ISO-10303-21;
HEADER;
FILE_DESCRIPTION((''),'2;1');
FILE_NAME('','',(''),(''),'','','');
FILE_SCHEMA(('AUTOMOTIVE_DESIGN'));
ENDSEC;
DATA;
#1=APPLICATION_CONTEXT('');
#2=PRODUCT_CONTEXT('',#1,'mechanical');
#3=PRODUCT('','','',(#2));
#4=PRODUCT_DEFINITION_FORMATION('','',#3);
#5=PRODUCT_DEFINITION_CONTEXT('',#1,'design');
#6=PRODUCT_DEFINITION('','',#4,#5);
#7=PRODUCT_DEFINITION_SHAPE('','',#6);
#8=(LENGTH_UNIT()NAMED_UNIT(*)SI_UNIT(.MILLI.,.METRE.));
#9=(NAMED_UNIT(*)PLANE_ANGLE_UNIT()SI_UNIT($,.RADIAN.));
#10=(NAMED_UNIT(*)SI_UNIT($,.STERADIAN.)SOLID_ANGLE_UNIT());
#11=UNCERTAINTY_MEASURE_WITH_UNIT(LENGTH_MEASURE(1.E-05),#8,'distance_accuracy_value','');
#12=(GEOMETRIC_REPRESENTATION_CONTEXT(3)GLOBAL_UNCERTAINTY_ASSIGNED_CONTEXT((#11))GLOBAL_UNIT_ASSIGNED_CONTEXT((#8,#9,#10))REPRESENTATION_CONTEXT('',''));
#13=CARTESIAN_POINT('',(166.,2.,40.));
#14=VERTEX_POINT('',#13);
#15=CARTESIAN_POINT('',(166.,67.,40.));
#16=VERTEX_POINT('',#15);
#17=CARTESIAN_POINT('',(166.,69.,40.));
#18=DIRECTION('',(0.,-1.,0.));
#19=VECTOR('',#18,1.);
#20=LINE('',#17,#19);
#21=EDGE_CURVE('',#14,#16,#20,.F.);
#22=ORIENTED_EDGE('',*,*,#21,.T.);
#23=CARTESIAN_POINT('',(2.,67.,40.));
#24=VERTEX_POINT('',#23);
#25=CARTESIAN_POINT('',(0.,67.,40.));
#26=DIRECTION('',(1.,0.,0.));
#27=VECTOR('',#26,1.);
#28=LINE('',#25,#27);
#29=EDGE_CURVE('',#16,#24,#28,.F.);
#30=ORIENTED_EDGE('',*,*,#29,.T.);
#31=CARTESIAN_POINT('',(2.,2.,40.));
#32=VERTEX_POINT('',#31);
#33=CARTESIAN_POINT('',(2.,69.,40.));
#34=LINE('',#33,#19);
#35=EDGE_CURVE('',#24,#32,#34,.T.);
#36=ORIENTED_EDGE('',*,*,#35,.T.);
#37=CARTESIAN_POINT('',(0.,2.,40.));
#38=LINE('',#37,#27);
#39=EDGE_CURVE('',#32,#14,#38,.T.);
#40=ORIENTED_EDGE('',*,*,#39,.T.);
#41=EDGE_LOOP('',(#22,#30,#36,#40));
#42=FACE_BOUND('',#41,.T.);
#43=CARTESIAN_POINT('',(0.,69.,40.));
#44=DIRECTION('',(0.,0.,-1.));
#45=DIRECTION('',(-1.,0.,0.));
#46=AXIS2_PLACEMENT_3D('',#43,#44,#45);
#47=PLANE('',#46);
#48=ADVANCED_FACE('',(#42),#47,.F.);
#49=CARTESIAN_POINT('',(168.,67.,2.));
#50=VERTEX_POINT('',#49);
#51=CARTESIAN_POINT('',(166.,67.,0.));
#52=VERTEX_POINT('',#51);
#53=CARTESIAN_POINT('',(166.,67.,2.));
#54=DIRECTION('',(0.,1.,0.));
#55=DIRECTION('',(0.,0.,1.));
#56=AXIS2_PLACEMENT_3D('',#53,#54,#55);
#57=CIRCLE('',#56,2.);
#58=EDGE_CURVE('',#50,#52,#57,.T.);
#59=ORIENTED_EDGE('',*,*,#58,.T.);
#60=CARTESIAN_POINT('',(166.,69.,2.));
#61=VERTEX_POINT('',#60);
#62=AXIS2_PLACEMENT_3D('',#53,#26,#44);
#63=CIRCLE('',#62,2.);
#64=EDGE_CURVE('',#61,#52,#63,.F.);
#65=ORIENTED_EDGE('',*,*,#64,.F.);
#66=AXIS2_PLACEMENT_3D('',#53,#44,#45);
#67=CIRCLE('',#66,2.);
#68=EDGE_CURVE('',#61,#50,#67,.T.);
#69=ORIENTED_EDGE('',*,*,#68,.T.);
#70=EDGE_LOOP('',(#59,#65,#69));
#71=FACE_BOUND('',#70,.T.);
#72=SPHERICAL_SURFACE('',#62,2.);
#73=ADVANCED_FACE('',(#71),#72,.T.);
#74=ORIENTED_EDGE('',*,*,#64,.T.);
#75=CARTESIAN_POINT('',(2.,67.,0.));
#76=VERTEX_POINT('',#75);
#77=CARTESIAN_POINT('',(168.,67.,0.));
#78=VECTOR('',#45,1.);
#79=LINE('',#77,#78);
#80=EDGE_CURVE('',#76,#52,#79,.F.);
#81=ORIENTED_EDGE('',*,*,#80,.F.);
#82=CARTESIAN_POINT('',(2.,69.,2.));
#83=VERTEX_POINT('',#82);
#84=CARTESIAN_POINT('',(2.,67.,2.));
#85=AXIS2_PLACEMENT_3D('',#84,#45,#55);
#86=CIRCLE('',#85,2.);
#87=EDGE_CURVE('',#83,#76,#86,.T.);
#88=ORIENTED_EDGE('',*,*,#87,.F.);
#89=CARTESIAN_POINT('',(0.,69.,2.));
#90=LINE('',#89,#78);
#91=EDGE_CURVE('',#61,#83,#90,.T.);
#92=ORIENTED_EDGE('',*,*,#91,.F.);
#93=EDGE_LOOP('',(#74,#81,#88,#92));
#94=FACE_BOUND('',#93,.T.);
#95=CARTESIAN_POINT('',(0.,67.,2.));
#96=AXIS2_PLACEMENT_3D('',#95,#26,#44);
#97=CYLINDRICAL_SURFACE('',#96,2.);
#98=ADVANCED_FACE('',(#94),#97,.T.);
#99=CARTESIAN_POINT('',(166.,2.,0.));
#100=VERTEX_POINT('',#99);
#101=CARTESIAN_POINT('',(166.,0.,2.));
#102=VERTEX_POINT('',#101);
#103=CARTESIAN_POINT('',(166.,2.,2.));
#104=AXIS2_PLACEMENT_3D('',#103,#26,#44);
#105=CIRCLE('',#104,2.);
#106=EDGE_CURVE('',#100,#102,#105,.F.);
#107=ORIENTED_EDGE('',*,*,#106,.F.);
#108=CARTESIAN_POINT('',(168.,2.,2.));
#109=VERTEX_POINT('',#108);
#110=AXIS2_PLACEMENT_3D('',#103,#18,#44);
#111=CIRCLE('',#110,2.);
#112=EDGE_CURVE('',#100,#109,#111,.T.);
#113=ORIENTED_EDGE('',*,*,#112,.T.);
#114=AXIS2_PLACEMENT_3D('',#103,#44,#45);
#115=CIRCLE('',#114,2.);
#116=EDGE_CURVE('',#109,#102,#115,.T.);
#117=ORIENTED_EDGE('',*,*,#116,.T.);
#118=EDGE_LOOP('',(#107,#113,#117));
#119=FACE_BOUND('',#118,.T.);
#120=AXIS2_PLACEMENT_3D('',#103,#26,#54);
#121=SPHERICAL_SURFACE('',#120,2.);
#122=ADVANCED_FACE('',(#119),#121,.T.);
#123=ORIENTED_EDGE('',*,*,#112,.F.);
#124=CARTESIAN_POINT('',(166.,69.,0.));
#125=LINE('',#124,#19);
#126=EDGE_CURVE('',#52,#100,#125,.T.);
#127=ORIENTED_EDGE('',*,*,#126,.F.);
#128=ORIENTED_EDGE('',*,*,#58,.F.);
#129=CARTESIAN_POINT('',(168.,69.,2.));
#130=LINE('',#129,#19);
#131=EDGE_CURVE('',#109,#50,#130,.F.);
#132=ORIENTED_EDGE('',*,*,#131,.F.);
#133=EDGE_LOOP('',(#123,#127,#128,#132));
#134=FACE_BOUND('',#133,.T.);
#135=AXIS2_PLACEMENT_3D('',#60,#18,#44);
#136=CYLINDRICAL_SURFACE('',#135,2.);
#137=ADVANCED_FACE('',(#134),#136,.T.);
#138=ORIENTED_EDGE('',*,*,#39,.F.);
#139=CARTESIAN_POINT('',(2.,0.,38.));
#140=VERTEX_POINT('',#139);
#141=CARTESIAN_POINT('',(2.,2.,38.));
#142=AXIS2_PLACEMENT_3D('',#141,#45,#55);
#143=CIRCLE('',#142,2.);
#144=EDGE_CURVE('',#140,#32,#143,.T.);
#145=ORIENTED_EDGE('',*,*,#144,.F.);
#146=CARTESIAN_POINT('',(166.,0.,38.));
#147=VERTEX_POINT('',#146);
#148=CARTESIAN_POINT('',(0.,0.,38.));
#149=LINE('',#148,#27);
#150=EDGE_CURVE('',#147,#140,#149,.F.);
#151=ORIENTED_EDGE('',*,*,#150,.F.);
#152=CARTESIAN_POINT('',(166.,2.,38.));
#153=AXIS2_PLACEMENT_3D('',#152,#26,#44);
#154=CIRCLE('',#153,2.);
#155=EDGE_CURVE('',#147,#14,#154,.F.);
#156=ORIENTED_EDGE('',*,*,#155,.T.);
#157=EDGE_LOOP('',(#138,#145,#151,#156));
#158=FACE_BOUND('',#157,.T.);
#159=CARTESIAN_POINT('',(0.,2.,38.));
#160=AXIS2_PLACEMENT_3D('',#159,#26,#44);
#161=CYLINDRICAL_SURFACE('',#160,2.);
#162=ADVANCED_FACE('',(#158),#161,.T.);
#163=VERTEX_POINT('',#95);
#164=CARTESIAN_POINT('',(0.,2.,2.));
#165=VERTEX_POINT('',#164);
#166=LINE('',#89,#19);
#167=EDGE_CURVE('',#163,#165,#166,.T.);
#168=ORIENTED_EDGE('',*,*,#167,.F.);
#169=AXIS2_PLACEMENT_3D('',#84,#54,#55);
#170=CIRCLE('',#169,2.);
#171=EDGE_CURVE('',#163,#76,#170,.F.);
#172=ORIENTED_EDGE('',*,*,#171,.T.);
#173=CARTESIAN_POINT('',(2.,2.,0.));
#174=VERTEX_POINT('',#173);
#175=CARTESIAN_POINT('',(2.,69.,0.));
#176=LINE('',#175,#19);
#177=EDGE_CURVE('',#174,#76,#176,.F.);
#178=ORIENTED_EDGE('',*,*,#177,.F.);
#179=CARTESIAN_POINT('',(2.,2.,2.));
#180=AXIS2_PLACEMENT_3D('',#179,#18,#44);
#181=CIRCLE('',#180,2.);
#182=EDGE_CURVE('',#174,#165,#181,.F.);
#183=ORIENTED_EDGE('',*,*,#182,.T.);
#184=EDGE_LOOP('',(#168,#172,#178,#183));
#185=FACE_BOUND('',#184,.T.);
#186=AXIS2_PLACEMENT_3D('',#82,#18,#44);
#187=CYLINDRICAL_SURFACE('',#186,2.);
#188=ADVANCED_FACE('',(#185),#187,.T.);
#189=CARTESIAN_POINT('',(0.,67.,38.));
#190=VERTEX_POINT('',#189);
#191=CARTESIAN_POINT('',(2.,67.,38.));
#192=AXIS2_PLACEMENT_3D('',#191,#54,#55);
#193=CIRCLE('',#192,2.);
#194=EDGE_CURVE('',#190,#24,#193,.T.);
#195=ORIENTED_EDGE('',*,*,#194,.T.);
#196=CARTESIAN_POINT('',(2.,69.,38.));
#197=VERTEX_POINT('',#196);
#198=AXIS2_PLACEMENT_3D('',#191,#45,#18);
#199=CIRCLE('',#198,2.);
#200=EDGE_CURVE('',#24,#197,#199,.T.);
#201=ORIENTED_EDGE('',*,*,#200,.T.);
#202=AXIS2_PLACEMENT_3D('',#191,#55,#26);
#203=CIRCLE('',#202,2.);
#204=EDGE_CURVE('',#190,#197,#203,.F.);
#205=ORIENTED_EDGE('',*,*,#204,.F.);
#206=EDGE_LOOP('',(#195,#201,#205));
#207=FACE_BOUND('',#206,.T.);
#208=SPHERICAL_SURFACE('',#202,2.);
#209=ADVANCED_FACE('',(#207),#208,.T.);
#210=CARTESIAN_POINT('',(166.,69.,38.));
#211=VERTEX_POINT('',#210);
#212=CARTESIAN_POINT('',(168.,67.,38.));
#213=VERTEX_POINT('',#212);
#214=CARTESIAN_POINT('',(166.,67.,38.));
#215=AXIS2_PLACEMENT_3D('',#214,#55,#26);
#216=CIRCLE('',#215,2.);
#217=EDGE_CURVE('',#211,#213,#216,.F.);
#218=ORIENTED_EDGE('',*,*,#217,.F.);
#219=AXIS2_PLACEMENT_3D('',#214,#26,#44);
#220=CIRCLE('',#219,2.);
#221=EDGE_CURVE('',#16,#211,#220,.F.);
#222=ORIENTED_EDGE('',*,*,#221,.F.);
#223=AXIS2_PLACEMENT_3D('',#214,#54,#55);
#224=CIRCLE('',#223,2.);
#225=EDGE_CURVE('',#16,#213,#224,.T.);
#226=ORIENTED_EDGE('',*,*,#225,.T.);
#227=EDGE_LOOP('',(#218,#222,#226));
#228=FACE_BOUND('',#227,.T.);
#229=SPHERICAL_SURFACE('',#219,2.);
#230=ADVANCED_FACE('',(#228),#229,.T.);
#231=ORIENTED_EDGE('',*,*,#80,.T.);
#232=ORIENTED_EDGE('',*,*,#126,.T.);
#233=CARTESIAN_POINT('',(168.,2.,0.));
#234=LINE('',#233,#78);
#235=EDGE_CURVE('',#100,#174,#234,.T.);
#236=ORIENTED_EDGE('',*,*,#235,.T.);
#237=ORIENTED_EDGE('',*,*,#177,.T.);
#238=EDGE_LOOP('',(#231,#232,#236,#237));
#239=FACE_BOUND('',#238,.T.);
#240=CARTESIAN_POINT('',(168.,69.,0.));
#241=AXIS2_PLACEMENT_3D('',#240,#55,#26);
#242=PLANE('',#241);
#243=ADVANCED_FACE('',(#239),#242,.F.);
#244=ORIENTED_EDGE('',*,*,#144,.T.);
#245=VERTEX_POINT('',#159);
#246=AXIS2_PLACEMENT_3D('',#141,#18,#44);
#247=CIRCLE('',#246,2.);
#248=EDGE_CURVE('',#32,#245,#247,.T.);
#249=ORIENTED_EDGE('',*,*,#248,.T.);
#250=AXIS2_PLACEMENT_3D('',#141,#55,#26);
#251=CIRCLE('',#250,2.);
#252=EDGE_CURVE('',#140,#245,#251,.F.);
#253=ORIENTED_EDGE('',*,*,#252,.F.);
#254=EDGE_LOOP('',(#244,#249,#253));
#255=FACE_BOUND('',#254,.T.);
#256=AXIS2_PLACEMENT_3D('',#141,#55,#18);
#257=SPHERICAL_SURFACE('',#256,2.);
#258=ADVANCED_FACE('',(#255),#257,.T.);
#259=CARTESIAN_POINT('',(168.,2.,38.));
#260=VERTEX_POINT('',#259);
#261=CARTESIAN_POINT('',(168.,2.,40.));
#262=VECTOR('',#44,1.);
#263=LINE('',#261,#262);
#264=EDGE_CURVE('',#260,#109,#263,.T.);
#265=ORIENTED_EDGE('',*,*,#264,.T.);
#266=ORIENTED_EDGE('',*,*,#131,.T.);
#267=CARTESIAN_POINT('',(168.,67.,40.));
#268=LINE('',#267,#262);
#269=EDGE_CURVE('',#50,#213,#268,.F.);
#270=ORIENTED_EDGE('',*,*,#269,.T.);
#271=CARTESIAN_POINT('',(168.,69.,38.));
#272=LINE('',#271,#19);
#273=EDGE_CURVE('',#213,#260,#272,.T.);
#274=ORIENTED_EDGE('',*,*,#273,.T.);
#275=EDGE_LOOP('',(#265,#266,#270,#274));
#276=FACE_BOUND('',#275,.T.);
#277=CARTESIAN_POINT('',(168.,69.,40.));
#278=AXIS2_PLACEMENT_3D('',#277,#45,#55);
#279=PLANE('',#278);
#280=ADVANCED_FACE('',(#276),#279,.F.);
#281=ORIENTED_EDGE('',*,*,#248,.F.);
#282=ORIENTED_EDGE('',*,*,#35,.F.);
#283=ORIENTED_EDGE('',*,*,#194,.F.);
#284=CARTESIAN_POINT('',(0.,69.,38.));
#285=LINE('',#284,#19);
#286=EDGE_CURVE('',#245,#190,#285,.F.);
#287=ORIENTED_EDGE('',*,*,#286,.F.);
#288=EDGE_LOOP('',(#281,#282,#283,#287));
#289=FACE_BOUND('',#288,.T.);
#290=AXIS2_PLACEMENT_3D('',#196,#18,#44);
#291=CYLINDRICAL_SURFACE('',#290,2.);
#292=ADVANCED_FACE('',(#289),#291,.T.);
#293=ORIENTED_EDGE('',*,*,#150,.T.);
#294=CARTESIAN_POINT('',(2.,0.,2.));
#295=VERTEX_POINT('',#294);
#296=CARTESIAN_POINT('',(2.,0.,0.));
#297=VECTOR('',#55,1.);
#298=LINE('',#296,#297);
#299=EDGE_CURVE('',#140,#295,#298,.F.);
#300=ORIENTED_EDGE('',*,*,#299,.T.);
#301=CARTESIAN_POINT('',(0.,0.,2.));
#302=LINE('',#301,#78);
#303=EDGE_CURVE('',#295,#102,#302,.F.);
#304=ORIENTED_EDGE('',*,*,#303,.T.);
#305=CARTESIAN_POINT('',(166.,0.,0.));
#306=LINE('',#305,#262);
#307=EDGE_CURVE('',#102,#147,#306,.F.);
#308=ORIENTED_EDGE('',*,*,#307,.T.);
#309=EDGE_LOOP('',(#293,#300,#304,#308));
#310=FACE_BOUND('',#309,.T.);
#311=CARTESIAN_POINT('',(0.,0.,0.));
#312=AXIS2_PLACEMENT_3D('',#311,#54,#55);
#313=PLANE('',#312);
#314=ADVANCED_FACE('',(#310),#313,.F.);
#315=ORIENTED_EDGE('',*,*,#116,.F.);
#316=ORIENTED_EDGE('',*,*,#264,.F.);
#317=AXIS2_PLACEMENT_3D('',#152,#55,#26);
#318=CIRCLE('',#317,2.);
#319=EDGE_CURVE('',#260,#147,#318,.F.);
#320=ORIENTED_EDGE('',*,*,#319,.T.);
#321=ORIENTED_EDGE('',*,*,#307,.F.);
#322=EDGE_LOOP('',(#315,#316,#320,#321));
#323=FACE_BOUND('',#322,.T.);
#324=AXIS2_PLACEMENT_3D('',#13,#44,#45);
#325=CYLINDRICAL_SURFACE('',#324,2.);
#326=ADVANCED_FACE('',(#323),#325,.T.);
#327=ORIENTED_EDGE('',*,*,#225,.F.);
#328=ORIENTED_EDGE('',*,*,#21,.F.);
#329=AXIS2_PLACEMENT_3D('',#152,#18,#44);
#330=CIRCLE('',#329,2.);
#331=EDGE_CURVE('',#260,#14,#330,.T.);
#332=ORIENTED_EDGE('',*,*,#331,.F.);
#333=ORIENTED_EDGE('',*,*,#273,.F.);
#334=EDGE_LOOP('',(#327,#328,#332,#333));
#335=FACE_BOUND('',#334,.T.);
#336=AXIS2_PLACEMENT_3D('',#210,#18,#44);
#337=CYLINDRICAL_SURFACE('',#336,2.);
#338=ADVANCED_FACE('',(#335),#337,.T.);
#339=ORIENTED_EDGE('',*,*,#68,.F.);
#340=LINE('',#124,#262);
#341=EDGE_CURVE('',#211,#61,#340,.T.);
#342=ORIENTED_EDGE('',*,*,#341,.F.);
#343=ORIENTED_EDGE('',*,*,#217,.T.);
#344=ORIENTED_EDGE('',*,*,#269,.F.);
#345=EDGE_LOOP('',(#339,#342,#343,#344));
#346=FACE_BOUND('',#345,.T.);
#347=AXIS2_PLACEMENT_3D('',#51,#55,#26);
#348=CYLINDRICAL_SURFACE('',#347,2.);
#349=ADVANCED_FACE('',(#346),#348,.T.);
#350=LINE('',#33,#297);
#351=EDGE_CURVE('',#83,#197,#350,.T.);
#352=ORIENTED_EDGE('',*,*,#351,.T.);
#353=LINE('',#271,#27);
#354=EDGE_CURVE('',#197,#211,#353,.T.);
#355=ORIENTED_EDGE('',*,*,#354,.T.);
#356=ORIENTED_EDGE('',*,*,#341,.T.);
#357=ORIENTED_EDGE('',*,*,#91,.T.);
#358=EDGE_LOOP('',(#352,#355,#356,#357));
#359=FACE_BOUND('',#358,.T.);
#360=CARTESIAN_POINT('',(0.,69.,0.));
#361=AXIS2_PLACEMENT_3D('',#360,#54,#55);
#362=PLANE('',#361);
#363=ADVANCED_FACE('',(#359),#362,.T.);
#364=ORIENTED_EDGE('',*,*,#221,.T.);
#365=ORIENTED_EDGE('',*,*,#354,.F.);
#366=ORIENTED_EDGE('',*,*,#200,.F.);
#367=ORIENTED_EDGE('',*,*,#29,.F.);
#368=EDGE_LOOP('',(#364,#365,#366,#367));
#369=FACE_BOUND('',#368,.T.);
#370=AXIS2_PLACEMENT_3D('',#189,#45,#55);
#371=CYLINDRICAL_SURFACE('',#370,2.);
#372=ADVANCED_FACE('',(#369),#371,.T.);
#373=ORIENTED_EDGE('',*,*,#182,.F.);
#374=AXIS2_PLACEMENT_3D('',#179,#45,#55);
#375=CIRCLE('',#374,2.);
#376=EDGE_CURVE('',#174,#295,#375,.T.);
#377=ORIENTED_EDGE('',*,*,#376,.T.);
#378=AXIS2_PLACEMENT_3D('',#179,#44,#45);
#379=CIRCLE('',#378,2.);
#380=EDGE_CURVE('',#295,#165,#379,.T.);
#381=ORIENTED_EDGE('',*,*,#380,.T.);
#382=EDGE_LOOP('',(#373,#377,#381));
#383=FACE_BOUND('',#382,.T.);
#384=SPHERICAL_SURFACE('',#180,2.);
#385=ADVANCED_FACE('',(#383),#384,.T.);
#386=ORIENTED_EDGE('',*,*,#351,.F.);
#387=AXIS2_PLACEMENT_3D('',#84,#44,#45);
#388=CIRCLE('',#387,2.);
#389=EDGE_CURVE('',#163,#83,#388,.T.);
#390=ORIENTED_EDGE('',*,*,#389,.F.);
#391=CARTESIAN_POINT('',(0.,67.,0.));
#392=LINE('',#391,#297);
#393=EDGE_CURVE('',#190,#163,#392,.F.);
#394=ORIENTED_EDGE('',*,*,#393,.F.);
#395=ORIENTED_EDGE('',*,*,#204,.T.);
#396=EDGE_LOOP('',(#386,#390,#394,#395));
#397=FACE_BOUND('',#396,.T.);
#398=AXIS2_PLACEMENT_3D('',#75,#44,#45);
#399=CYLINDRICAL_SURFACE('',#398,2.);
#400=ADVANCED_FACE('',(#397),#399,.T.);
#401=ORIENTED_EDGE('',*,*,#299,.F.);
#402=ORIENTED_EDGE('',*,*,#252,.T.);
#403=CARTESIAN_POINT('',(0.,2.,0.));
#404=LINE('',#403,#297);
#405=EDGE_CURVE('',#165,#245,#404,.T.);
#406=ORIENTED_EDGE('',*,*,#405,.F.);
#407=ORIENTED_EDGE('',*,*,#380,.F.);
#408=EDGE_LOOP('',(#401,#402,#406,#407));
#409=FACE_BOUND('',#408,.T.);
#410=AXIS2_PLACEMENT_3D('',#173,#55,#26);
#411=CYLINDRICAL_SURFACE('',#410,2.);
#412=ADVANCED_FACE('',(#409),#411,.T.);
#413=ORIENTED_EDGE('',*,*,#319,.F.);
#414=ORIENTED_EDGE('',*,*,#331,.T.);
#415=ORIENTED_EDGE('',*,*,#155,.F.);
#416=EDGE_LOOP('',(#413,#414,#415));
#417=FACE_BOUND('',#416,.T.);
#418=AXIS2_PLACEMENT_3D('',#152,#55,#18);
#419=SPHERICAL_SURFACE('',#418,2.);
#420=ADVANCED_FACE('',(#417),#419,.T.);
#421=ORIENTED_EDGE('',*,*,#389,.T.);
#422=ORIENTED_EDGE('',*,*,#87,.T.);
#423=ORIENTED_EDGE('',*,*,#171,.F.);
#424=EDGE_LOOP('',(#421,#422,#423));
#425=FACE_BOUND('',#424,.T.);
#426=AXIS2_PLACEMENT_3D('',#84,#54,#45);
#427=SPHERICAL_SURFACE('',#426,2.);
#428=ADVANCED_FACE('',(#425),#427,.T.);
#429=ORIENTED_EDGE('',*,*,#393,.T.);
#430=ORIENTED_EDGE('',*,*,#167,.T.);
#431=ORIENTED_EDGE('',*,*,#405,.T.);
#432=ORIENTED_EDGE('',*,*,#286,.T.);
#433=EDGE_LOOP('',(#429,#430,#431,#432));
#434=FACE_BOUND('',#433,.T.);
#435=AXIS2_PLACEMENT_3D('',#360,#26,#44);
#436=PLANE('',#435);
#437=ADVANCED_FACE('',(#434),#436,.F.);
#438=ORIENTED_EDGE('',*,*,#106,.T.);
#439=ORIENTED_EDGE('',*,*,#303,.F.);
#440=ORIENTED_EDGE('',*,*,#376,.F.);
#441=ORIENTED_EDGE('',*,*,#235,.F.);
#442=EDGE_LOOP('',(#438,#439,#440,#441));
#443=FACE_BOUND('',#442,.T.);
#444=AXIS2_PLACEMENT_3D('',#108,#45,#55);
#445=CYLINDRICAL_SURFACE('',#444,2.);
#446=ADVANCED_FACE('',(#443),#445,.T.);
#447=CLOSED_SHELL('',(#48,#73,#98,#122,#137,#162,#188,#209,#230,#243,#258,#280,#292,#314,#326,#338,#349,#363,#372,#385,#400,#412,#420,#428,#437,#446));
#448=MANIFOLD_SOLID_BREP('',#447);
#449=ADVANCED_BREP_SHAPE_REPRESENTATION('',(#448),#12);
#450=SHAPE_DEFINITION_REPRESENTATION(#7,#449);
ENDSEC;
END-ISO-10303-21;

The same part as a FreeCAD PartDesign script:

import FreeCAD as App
import Part
import Sketcher

V = App.Vector
Q = App.Units.Quantity


def add_polygon(sketch, points):
    """Adds a closed chain of lines whose ends are joined by coincident constraints."""
    first, n = sketch.GeometryCount, len(points)
    for a, b in zip(points, points[1:] + points[:1]):
        sketch.addGeometry(Part.LineSegment(App.Vector(*a, 0), App.Vector(*b, 0)), False)
    for i in range(n):
        sketch.addConstraint(Sketcher.Constraint("Coincident", first + i, 2, first + (i + 1) % n, 1))

doc = App.newDocument("Part")
body = doc.addObject("PartDesign::Body", "Body")

# Sketch on XZ plane
sketch1 = body.newObject("Sketcher::SketchObject", "Sketch")
sketch1.AttachmentSupport = (doc.getObject("XZ_Plane"), [""])
sketch1.MapMode = "FlatFace"
add_polygon(sketch1, [(0, 0), (0, 40), (168, 40), (168, 0)])  # lines 0-3
sketch1.addConstraint([
    Sketcher.Constraint("Vertical", 0),
    Sketcher.Constraint("Horizontal", 1),
    Sketcher.Constraint("Vertical", 2),
    Sketcher.Constraint("Horizontal", 3),
    Sketcher.Constraint("Coincident", 3, 2, -1, 1),
    Sketcher.Constraint("DistanceX", 1, 1, 1, 2, Q("168 mm")),
    Sketcher.Constraint("DistanceY", 0, 1, 0, 2, Q("40 mm")),
])
pad1 = body.newObject("PartDesign::Pad", "Pad")
pad1.Profile = sketch1
pad1.Length = 69
pad1.Reversed = True
doc.recompute()

fillet = body.newObject("PartDesign::Fillet", "Fillet")
fillet.Base = (pad1, ["Edge1"])
fillet.UseAllEdges = True
fillet.Radius = 2

doc.recompute()
